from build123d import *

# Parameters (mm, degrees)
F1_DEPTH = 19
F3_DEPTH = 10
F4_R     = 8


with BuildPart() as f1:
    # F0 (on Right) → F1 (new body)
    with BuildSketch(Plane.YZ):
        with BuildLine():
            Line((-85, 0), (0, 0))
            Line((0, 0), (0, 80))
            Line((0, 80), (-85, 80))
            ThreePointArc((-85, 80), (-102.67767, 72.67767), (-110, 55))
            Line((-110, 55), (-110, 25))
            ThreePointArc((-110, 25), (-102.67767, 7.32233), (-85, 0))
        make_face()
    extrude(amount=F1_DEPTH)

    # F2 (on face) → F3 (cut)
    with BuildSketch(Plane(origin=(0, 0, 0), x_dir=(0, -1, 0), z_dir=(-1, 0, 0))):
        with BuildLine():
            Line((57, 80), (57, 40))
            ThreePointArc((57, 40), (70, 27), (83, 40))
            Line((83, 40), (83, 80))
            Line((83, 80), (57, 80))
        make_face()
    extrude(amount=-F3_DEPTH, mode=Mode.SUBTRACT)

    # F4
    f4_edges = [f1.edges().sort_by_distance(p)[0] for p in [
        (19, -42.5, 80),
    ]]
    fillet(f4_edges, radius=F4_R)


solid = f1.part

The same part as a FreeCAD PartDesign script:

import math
import FreeCAD as App
import Part
import Sketcher
from FreeCAD import Vector


def edges_at(feature, points):
    """Names of the edges that pass closest to the given points."""
    edges = feature.Shape.Edges
    near = lambda p: min(range(len(edges)), key=lambda i: edges[i].distToShape(Part.Vertex(*p))[0])
    return sorted({f"Edge{near(p) + 1}" for p in points})

doc = App.newDocument("Part")
body = doc.addObject("PartDesign::Body", "Body")

# Sketch on YZ plane
sketch1 = doc.addObject("Sketcher::SketchObject", "Sketch")
body.addObject(sketch1)
sketch1.AttachmentSupport = (doc.YZ_Plane, [""])
sketch1.MapMode = "FlatFace"
sketch1.addGeometry([
    Part.LineSegment(Vector(-85, 0, 0), Vector(0, 0, 0)),  # 0
    Part.LineSegment(Vector(0, 0, 0), Vector(0, 80, 0)),  # 1
    Part.LineSegment(Vector(0, 80, 0), Vector(-85, 80, 0)),  # 2
    Part.ArcOfCircle(Part.Circle(Vector(-85, 55, 0), Vector(0, 0, 1), 25), math.radians(90), math.radians(180)),  # 3
    Part.LineSegment(Vector(-110, 55, 0), Vector(-110, 25, 0)),  # 4
    Part.ArcOfCircle(Part.Circle(Vector(-85, 25, 0), Vector(0, 0, 1), 25), math.radians(180), math.radians(270)),  # 5
], False)
sketch1.addConstraint([
    Sketcher.Constraint("Coincident", 0, 2, 1, 1),
    Sketcher.Constraint("Coincident", 1, 2, 2, 1),
    Sketcher.Constraint("Tangent", 2, 2, 3, 1),
    Sketcher.Constraint("Tangent", 3, 2, 4, 1),
    Sketcher.Constraint("Tangent", 4, 2, 5, 1),
    Sketcher.Constraint("Tangent", 5, 2, 0, 1),
    Sketcher.Constraint("Horizontal", 0),
    Sketcher.Constraint("Vertical", 1),
    Sketcher.Constraint("Horizontal", 2),
    Sketcher.Constraint("Vertical", 4),
    Sketcher.Constraint("Coincident", 0, 2, -1, 1),
    Sketcher.Constraint("Equal", 3, 5),
    Sketcher.Constraint("Radius", 3, 24.999998),
    Sketcher.Constraint("DistanceX", 0, 1, 0, 2, 85.0),
    Sketcher.Constraint("DistanceY", 1, 1, 1, 2, 80.0),
])
pad1 = doc.addObject("PartDesign::Pad", "Pad")
body.addObject(pad1)
pad1.Profile = sketch1
pad1.Length = 19

# Sketch on YZ plane
sketch2 = doc.addObject("Sketcher::SketchObject", "Sketch001")
body.addObject(sketch2)
sketch2.AttachmentSupport = (doc.YZ_Plane, [""])
sketch2.MapMode = "FlatFace"
sketch2.addGeometry([
    Part.LineSegment(Vector(-57, 80, 0), Vector(-57, 40, 0)),
    Part.ArcOfCircle(Part.Circle(Vector(-70, 40, 0), Vector(0, 0, 1), 13), math.radians(180), math.radians(360)),
    Part.LineSegment(Vector(-83, 40, 0), Vector(-83, 80, 0)),
    Part.LineSegment(Vector(-83, 80, 0), Vector(-57, 80, 0)),
], False)
sketch2.addConstraint([
    Sketcher.Constraint("Tangent", 0, 2, 1, 2),
    Sketcher.Constraint("Tangent", 1, 1, 2, 1),
    Sketcher.Constraint("Coincident", 2, 2, 3, 1),
    Sketcher.Constraint("Coincident", 3, 2, 0, 1),
    Sketcher.Constraint("Vertical", 0),
    Sketcher.Constraint("Vertical", 2),
    Sketcher.Constraint("Horizontal", 3),
    Sketcher.Constraint("Radius", 1, 13.0),
    Sketcher.Constraint("DistanceY", 0, 2, 0, 1, 40.0),
    Sketcher.Constraint("DistanceX", 1, 3, -1, 1, 70.0),
    Sketcher.Constraint("DistanceY", -1, 1, 1, 3, 40.0),
])
pocket1 = doc.addObject("PartDesign::Pocket", "Pocket")
body.addObject(pocket1)
pocket1.Profile = sketch2
pocket1.Length = 10
pocket1.Reversed = True
doc.recompute()

fillet = doc.addObject("PartDesign::Fillet", "Fillet")
body.addObject(fillet)
fillet.Base = (pocket1, edges_at(pocket1, [(19, -42.5, 80)]))
fillet.Radius = 8

doc.recompute()
